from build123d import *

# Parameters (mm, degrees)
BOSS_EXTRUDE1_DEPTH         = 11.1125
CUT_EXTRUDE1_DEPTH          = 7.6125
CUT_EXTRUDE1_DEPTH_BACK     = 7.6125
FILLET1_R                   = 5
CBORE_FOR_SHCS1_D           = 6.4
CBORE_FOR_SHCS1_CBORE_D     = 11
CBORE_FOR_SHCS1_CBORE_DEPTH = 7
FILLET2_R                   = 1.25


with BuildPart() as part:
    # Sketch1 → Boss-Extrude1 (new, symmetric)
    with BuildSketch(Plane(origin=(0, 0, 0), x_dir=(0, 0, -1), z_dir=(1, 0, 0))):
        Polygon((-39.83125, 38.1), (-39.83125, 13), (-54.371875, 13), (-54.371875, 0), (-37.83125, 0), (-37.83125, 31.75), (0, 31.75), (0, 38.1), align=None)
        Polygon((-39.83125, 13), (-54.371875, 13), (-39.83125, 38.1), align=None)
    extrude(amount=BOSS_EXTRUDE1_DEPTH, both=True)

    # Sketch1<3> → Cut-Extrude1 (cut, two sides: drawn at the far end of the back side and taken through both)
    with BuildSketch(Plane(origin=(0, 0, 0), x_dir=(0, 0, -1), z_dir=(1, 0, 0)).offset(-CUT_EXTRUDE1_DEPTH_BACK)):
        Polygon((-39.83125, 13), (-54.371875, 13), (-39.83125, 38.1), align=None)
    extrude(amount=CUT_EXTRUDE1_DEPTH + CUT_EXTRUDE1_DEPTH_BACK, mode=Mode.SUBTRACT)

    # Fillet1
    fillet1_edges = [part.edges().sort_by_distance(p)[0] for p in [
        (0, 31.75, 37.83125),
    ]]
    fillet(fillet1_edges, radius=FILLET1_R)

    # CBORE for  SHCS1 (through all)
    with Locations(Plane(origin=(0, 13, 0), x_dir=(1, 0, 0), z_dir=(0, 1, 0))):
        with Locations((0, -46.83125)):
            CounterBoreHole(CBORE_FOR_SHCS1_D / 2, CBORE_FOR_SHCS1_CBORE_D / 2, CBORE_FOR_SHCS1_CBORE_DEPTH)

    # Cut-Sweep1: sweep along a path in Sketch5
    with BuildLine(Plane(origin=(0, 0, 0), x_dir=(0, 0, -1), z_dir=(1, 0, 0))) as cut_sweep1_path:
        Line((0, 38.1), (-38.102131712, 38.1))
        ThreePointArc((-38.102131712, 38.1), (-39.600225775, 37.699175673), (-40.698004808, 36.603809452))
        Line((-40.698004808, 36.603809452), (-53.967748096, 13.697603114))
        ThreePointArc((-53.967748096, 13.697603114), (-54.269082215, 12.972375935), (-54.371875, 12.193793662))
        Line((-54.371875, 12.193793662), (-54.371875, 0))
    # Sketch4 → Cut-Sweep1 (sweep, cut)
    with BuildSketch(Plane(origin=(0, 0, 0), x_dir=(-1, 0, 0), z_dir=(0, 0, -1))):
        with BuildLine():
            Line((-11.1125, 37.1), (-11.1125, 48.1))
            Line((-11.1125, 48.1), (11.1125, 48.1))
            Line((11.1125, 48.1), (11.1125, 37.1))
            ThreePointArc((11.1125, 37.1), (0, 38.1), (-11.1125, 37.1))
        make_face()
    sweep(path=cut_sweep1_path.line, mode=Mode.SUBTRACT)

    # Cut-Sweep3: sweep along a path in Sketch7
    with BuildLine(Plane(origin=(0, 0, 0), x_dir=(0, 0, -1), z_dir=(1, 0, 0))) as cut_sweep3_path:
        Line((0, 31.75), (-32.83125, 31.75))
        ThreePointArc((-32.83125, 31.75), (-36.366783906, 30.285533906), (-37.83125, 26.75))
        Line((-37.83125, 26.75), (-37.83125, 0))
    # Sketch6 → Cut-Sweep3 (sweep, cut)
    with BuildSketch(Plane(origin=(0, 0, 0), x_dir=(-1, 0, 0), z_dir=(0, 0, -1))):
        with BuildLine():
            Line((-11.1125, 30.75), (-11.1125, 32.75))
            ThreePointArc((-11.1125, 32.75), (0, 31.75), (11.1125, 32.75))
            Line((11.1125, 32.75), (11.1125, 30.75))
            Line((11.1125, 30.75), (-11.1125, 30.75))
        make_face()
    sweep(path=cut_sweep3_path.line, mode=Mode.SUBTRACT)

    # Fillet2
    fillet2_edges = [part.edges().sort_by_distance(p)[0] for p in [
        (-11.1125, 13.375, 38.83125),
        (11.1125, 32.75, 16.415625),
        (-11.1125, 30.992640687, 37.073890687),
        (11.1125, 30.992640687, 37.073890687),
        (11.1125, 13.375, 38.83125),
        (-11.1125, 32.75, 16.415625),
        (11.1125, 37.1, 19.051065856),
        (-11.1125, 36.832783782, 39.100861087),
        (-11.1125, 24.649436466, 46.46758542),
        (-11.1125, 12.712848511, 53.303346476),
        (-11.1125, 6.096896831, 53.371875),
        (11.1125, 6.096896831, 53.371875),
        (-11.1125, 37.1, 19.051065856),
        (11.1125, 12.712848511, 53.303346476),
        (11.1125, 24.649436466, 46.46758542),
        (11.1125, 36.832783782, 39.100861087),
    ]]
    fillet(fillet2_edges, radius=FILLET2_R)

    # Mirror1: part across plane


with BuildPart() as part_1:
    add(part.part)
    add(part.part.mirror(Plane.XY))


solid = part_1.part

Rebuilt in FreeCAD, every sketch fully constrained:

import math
import FreeCAD as App
import Part
import Sketcher

V = App.Vector
Q = App.Units.Quantity


def edges_at(feature, points):
    """Names of the edges that pass closest to the given points."""
    edges = feature.Shape.Edges
    near = lambda p: min(range(len(edges)), key=lambda i: edges[i].distToShape(Part.Vertex(*p))[0])
    return sorted({f"Edge{near(p) + 1}" for p in points})

doc = App.newDocument("Part")
body = doc.addObject("PartDesign::Body", "Body")

sketch1 = body.newObject("Sketcher::SketchObject", "Sketch")
sketch1.AttachmentSupport = (doc.getObject("YZ_Plane"), [""])
sketch1.MapMode = "FlatFace"
sketch1.addGeometry([
    Part.LineSegment(V(13, 54, 0), V(0, 54, 0)),
    Part.LineSegment(V(0, 54, 0), V(0, 38, 0)),
    Part.LineSegment(V(0, 38, 0), V(32, 38, 0)),
    Part.LineSegment(V(32, 38, 0), V(32, 0, 0)),
    Part.LineSegment(V(32, 0, 0), V(38, 0, 0)),
    Part.LineSegment(V(38, 0, 0), V(38, 40, 0)),
    Part.LineSegment(V(38, 40, 0), V(13, 54, 0)),
], False)
sketch1.addConstraint([
    Sketcher.Constraint("Coincident", 0, 2, 1, 1),
    Sketcher.Constraint("Coincident", 1, 2, 2, 1),
    Sketcher.Constraint("Coincident", 2, 2, 3, 1),
    Sketcher.Constraint("Coincident", 3, 2, 4, 1),
    Sketcher.Constraint("Coincident", 4, 2, 5, 1),
    Sketcher.Constraint("Coincident", 5, 2, 6, 1),
    Sketcher.Constraint("Coincident", 6, 2, 0, 1),
    Sketcher.Constraint("Horizontal", 0),
    Sketcher.Constraint("Vertical", 1),
    Sketcher.Constraint("Horizontal", 2),
    Sketcher.Constraint("Vertical", 3),
    Sketcher.Constraint("Horizontal", 4),
    Sketcher.Constraint("Vertical", 5),
    Sketcher.Constraint("PointOnObject", 0, 2, -2),
    Sketcher.Constraint("PointOnObject", 3, 2, -1),
    Sketcher.Constraint("DistanceX", 0, 2, 0, 1, Q("13 mm")),
    Sketcher.Constraint("DistanceY", 2, 2, 5, 2, Q("2 mm")),
    Sketcher.Constraint("DistanceX", 2, 1, 2, 2, Q("31.75 mm")),
    Sketcher.Constraint("DistanceX", 4, 1, 4, 2, Q("6.35 mm")),
    Sketcher.Constraint("DistanceY", 3, 2, 3, 1, Q("37.83125 mm")),
    Sketcher.Constraint("Distance", 6, Q("29.007581 mm")),
])
pad1 = body.newObject("PartDesign::Pad", "Pad")
pad1.Profile = sketch1
pad1.Length = 22.225
pad1.Midplane = True

sketch2 = body.newObject("Sketcher::SketchObject", "Sketch001")
sketch2.AttachmentSupport = (doc.getObject("YZ_Plane"), [""])
sketch2.MapMode = "FlatFace"
sketch2.addGeometry([
    Part.LineSegment(V(13, 54, 0), V(13, 40, 0)),
    Part.LineSegment(V(13, 40, 0), V(38, 40, 0)),
    Part.LineSegment(V(38, 40, 0), V(13, 54, 0)),
], False)
sketch2.addConstraint([
    Sketcher.Constraint("Coincident", 0, 2, 1, 1),
    Sketcher.Constraint("Coincident", 1, 2, 2, 1),
    Sketcher.Constraint("Coincident", 2, 2, 0, 1),
    Sketcher.Constraint("Vertical", 0),
    Sketcher.Constraint("Horizontal", 1),
    Sketcher.Constraint("DistanceX", 1, 1, 1, 2, Q("25.1 mm")),
    Sketcher.Constraint("DistanceX", -1, 1, 0, 2, Q("13 mm")),
    Sketcher.Constraint("Distance", 2, Q("29.007581 mm")),
    Sketcher.Constraint("DistanceY", -1, 1, 0, 2, Q("39.83125 mm")),
])
pocket1 = body.newObject("PartDesign::Pocket", "Pocket")
pocket1.Profile = sketch2
pocket1.Type = "TwoLengths"
pocket1.Length = 7.6125
pocket1.Length2 = 7.6125
pocket1.Reversed = True
doc.recompute()

fillet = body.newObject("PartDesign::Fillet", "Fillet")
fillet.Base = (pocket1, edges_at(pocket1, [(0, 31.75, 37.831)]))
fillet.Radius = 5

sketch3 = body.newObject("Sketcher::SketchObject", "Sketch002")
sketch3.AttachmentSupport = (doc.getObject("XZ_Plane"), [""])
sketch3.MapMode = "FlatFace"
sketch3.AttachmentOffset = App.Placement(V(0, 0, -13), App.Rotation())
sketch3.addGeometry(Part.Circle(V(0, 46.8, 0), V(0, 0, 1), 3.2), False)
sketch3.addConstraint([
    Sketcher.Constraint("PointOnObject", 0, 3, -2),
    Sketcher.Constraint("Diameter", 0, Q("6.4 mm")),
    Sketcher.Constraint("DistanceY", -1, 1, 0, 3, Q("46.83125 mm")),
])
doc.recompute()
hole = body.newObject("PartDesign::Hole", "Hole")
hole.Profile = sketch3
hole.ThreadType = "None"
hole.Diameter = 6.4
hole.DepthType = "ThroughAll"
hole.HoleCutType = "Counterbore"
hole.HoleCutDiameter = 11
hole.HoleCutDepth = 7
hole.Reversed = True

sketch4 = body.newObject("Sketcher::SketchObject", "Sketch003")
sketch4.AttachmentSupport = (doc.getObject("XY_Plane"), [""])
sketch4.MapMode = "FlatFace"
sketch4.addGeometry([
    Part.LineSegment(V(11, 48, 0), V(11, 37, 0)),
    Part.ArcOfCircle(Part.Circle(V(0, -24, 0), V(0, 0, 1), 62), math.radians(80), math.radians(100)),
    Part.LineSegment(V(-11, 37, 0), V(-11, 48, 0)),
    Part.LineSegment(V(-11, 48, 0), V(11, 48, 0)),
], False)
sketch4.addConstraint([
    Sketcher.Constraint("Coincident", 0, 2, 1, 1),
    Sketcher.Constraint("Coincident", 1, 2, 2, 1),
    Sketcher.Constraint("Coincident", 2, 2, 3, 1),
    Sketcher.Constraint("Coincident", 3, 2, 0, 1),
    Sketcher.Constraint("Vertical", 0),
    Sketcher.Constraint("Vertical", 2),
    Sketcher.Constraint("Horizontal", 3),
    Sketcher.Constraint("Symmetric", 0, 2, 1, 2, -2),
    Sketcher.Constraint("DistanceY", 0, 2, 0, 1, Q("11 mm")),
    Sketcher.Constraint("DistanceY", -1, 1, 0, 2, Q("37.1 mm")),
    Sketcher.Constraint("DistanceX", 3, 1, 3, 2, Q("22.225 mm")),
    Sketcher.Constraint("Radius", 1, Q("62.243828 mm")),
])

sketch5 = body.newObject("Sketcher::SketchObject", "Sketch004")
sketch5.AttachmentSupport = (doc.getObject("YZ_Plane"), [""])
sketch5.MapMode = "FlatFace"
sketch5.addGeometry([
    Part.LineSegment(V(38.1, 0, 0), V(38.1, 38.1, 0)),
    Part.ArcOfCircle(Part.Circle(V(35.1, 38.1, 0), V(0, 0, 1), 3), math.radians(0), math.radians(60)),
    Part.LineSegment(V(36.6, 40.7, 0), V(13.7, 54, 0)),
    Part.ArcOfCircle(Part.Circle(V(12.2, 51.4, 0), V(0, 0, 1), 3), math.radians(60), math.radians(90)),
    Part.LineSegment(V(12.2, 54.4, 0), V(0, 54.4, 0)),
], False)
sketch5.addConstraint([
    Sketcher.Constraint("Tangent", 0, 2, 1, 1),
    Sketcher.Constraint("Tangent", 1, 2, 2, 1),
    Sketcher.Constraint("Tangent", 2, 2, 3, 1),
    Sketcher.Constraint("Tangent", 3, 2, 4, 1),
    Sketcher.Constraint("Vertical", 0),
    Sketcher.Constraint("Horizontal", 4),
    Sketcher.Constraint("Equal", 1, 3),
    Sketcher.Constraint("PointOnObject", 0, 1, -1),
    Sketcher.Constraint("PointOnObject", 4, 2, -2),
    Sketcher.Constraint("Radius", 1, Q("3 mm")),
    Sketcher.Constraint("DistanceX", -1, 1, 1, 3, Q("35.1 mm")),
    Sketcher.Constraint("DistanceY", 0, 1, 0, 2, Q("38.102132 mm")),
    Sketcher.Constraint("DistanceX", 4, 2, 4, 1, Q("12.193794 mm")),
    Sketcher.Constraint("DistanceX", -1, 1, 1, 2, Q("36.603809 mm")),
])
doc.recompute()

subtractivepipe = body.newObject("PartDesign::SubtractivePipe", "SubtractivePipe")
subtractivepipe.Profile = sketch4
subtractivepipe.Spine = (sketch5, ["Edge1", "Edge2", "Edge3", "Edge4", "Edge5"])

sketch6 = body.newObject("Sketcher::SketchObject", "Sketch005")
sketch6.AttachmentSupport = (doc.getObject("XY_Plane"), [""])
sketch6.MapMode = "FlatFace"
sketch6.addGeometry([
    Part.LineSegment(V(11.1, 32.8, 0), V(11.1, 30.8, 0)),
    Part.LineSegment(V(11.1, 30.8, 0), V(-11.1, 30.8, 0)),
    Part.LineSegment(V(-11.1, 30.8, 0), V(-11.1, 32.8, 0)),
    Part.ArcOfCircle(Part.Circle(V(0, 94, 0), V(0, 0, 1), 62.2), math.radians(-100), math.radians(-80)),
], False)
sketch6.addConstraint([
    Sketcher.Constraint("Coincident", 0, 2, 1, 1),
    Sketcher.Constraint("Coincident", 1, 2, 2, 1),
    Sketcher.Constraint("Coincident", 2, 2, 3, 1),
    Sketcher.Constraint("Coincident", 3, 2, 0, 1),
    Sketcher.Constraint("Vertical", 0),
    Sketcher.Constraint("Horizontal", 1),
    Sketcher.Constraint("Vertical", 2),
    Sketcher.Constraint("Symmetric", 2, 2, 3, 2, -2),
    Sketcher.Constraint("DistanceY", 0, 2, 0, 1, Q("2 mm")),
    Sketcher.Constraint("DistanceX", 1, 2, 1, 1, Q("22.225 mm")),
    Sketcher.Constraint("DistanceY", -1, 1, 0, 2, Q("30.75 mm")),
    Sketcher.Constraint("Radius", 3, Q("62.243828 mm")),
])

sketch7 = body.newObject("Sketcher::SketchObject", "Sketch006")
sketch7.AttachmentSupport = (doc.getObject("YZ_Plane"), [""])
sketch7.MapMode = "FlatFace"
sketch7.addGeometry([
    Part.LineSegment(V(32, 0, 0), V(32, 33, 0)),
    Part.ArcOfCircle(Part.Circle(V(27, 33, 0), V(0, 0, 1), 5), math.radians(0), math.radians(90)),
    Part.LineSegment(V(27, 38, 0), V(0, 38, 0)),
], False)
sketch7.addConstraint([
    Sketcher.Constraint("Tangent", 0, 2, 1, 1),
    Sketcher.Constraint("Tangent", 1, 2, 2, 1),
    Sketcher.Constraint("Vertical", 0),
    Sketcher.Constraint("Horizontal", 2),
    Sketcher.Constraint("PointOnObject", 0, 1, -1),
    Sketcher.Constraint("PointOnObject", 2, 2, -2),
    Sketcher.Constraint("Radius", 1, Q("5 mm")),
    Sketcher.Constraint("DistanceX", 2, 2, 2, 1, Q("26.75 mm")),
    Sketcher.Constraint("DistanceY", 0, 1, 0, 2, Q("32.83125 mm")),
])
doc.recompute()

subtractivepipe2 = body.newObject("PartDesign::SubtractivePipe", "SubtractivePipe001")
subtractivepipe2.Profile = sketch6
subtractivepipe2.Spine = (sketch7, ["Edge1", "Edge2", "Edge3"])
doc.recompute()

fillet2 = body.newObject("PartDesign::Fillet", "Fillet001")
fillet2.Base = (subtractivepipe2, edges_at(subtractivepipe2, [
    (-11.113, 13.375, 38.831),
    (11.113, 32.75, 16.416),
    (-11.113, 30.993, 37.074),
    (11.113, 30.993, 37.074),
    (11.113, 13.375, 38.831),
    (-11.113, 32.75, 16.416),
    (11.113, 37.1, 19.051),
    (-11.113, 36.833, 39.101),
    (-11.113, 24.649, 46.468),
    (-11.113, 12.713, 53.303),
    (-11.113, 6.097, 53.372),
    (11.113, 6.097, 53.372),
    (-11.113, 37.1, 19.051),
    (11.113, 12.713, 53.303),
    (11.113, 24.649, 46.468),
    (11.113, 36.833, 39.101),
]))
fillet2.Radius = 1.25
body2 = doc.addObject("PartDesign::Body", "Body001")
doc.recompute()

body2.BaseFeature = body
doc.recompute()

mirroring = doc.addObject("Part::Mirroring", "Mirroring")
mirroring.Source = body
mirroring.Base = V(0, 0, 0)
mirroring.Normal = V(0, 0, 1)
body3 = doc.addObject("PartDesign::Body", "Body002")
body3.BaseFeature = mirroring
boolean = body2.newObject("PartDesign::Boolean", "Boolean")
boolean.Type = "Fuse"
boolean.addObjects([body3])
doc.recompute()
mirroring.Visibility = False

doc.recompute()
